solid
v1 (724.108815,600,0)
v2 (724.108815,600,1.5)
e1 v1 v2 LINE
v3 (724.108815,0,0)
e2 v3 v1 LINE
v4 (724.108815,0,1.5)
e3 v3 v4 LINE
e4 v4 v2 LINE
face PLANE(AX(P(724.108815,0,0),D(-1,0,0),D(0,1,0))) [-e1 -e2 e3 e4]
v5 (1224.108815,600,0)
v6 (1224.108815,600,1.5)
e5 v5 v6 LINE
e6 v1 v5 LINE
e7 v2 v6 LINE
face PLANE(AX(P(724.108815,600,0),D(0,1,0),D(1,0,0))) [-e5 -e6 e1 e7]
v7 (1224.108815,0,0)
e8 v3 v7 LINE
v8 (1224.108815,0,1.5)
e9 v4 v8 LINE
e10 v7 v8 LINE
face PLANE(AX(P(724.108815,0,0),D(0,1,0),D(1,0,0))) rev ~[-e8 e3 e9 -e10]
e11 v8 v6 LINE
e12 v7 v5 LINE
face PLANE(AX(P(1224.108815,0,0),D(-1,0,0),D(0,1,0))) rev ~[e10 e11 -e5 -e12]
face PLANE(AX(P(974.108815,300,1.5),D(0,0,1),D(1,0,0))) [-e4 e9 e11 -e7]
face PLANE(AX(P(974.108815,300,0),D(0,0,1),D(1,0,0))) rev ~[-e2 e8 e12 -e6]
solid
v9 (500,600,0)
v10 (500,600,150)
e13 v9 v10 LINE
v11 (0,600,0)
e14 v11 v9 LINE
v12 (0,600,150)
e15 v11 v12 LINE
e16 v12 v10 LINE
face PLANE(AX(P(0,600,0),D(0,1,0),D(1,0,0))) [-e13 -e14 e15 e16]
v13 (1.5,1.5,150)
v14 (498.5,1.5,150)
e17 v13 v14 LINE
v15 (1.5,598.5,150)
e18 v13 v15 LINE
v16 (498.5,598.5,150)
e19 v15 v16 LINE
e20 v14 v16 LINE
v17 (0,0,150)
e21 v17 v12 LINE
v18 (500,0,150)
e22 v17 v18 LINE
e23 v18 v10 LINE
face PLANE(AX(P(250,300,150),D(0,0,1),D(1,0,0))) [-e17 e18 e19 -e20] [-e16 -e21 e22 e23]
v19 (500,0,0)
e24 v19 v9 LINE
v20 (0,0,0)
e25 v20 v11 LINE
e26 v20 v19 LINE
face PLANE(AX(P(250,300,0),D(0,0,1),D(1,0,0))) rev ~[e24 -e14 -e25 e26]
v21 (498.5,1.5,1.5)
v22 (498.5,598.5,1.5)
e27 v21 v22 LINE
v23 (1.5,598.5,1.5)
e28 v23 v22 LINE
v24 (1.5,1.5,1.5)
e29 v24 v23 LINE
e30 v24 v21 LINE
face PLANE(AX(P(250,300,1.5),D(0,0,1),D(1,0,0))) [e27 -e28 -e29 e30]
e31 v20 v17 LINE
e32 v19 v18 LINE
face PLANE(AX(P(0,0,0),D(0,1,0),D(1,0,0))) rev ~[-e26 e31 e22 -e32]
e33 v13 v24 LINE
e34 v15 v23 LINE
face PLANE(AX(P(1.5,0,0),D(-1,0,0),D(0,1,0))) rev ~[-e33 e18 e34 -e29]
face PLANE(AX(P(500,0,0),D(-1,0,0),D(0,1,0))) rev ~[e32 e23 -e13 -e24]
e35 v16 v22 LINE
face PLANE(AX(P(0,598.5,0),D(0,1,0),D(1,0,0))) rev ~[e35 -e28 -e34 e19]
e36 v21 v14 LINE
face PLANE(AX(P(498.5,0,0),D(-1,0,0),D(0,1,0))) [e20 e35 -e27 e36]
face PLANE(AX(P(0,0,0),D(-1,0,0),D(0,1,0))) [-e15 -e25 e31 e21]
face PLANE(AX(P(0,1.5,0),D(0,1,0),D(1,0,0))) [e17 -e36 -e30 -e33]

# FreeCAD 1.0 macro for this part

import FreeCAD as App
import Part
import Sketcher
Q = App.Units.Quantity


def faces_at(feature, points):
    """Names of the faces that lie closest to the given points."""
    faces = feature.Shape.Faces
    near = lambda p: min(range(len(faces)), key=lambda i: faces[i].distToShape(Part.Vertex(*p))[0])
    return sorted({f"Face{near(p) + 1}" for p in points})

doc = App.newDocument("Part")
params = doc.addObject("Spreadsheet::Sheet", "Params")
for row, (alias, value) in enumerate([
    ("sketch1_width", "500 mm"),
    ("sketch1_height", "600 mm"),
    ("pad1_length", "150 mm"),
    ("thickness_wall", "1.5 mm"),
    ("sketch2_width", "500 mm"),
    ("sketch2_height", "600 mm"),
    ("pad2_length", "1.5 mm"),
], start=1):
    params.set(f"A{row}", alias)
    params.set(f"B{row}", "=" + value)
    params.setAlias(f"B{row}", alias)

body = doc.addObject("PartDesign::Body", "Body")

# Sketch on XY plane
sketch1 = doc.addObject("Sketcher::SketchObject", "Sketch")
body.addObject(sketch1)
sketch1.AttachmentSupport = (doc.XY_Plane, [""])
sketch1.MapMode = "FlatFace"
sketch1.addGeometry([
    Part.LineSegment(App.Vector(0, 600, 0), App.Vector(0, 0, 0)),
    Part.LineSegment(App.Vector(0, 0, 0), App.Vector(500, 0, 0)),
    Part.LineSegment(App.Vector(500, 0, 0), App.Vector(500, 600, 0)),
    Part.LineSegment(App.Vector(500, 600, 0), App.Vector(0, 600, 0)),
], False)
sketch1.addConstraint([
    Sketcher.Constraint("Coincident", 0, 2, 1, 1),
    Sketcher.Constraint("Coincident", 1, 2, 2, 1),
    Sketcher.Constraint("Coincident", 2, 2, 3, 1),
    Sketcher.Constraint("Coincident", 3, 2, 0, 1),
    Sketcher.Constraint("Vertical", 0),
    Sketcher.Constraint("Horizontal", 1),
    Sketcher.Constraint("Vertical", 2),
    Sketcher.Constraint("Horizontal", 3),
    Sketcher.Constraint("Coincident", 0, 2, -1, 1),
    Sketcher.Constraint("DistanceX", 1, 1, 1, 2, Q("500 mm")),
    Sketcher.Constraint("DistanceY", 0, 2, 0, 1, Q("600 mm")),
])
sketch1.setExpression("Constraints[9]", "Params.sketch1_width")
sketch1.setExpression("Constraints[10]", "Params.sketch1_height")
pad1 = doc.addObject("PartDesign::Pad", "Pad")
body.addObject(pad1)
pad1.Profile = sketch1
pad1.setExpression("Length", "Params.pad1_length")
doc.recompute()

thickness = doc.addObject("PartDesign::Thickness", "Thickness")
body.addObject(thickness)
thickness.Base = (pad1, faces_at(pad1, [(250, 300, 150)]))
thickness.setExpression("Value", "Params.thickness_wall")
thickness.Reversed = True
thickness.Join = "Arc"
body2 = doc.addObject("PartDesign::Body", "Body001")

# Sketch on XY plane
sketch2 = doc.addObject("Sketcher::SketchObject", "Sketch001")
body2.addObject(sketch2)
sketch2.AttachmentSupport = (doc.getObject("XY_Plane001"), [""])
sketch2.MapMode = "FlatFace"
sketch2.addGeometry([
    Part.LineSegment(App.Vector(724.108815, 600, 0), App.Vector(724.108815, 0, 0)),
    Part.LineSegment(App.Vector(724.108815, 0, 0), App.Vector(1224.108815, 0, 0)),
    Part.LineSegment(App.Vector(1224.108815, 0, 0), App.Vector(1224.108815, 600, 0)),
    Part.LineSegment(App.Vector(1224.108815, 600, 0), App.Vector(724.108815, 600, 0)),
], False)
sketch2.addConstraint([
    Sketcher.Constraint("Coincident", 0, 2, 1, 1),
    Sketcher.Constraint("Coincident", 1, 2, 2, 1),
    Sketcher.Constraint("Coincident", 2, 2, 3, 1),
    Sketcher.Constraint("Coincident", 3, 2, 0, 1),
    Sketcher.Constraint("Vertical", 0),
    Sketcher.Constraint("Horizontal", 1),
    Sketcher.Constraint("Vertical", 2),
    Sketcher.Constraint("Horizontal", 3),
    Sketcher.Constraint("PointOnObject", 0, 2, -1),
    Sketcher.Constraint("DistanceX", 1, 1, 1, 2, Q("500 mm")),
    Sketcher.Constraint("DistanceY", 0, 2, 0, 1, Q("600 mm")),
    Sketcher.Constraint("DistanceX", -1, 1, 0, 2, Q("724.108815 mm")),
])
sketch2.setExpression("Constraints[9]", "Params.sketch2_width")
sketch2.setExpression("Constraints[10]", "Params.sketch2_height")
pad2 = doc.addObject("PartDesign::Pad", "Pad001")
body2.addObject(pad2)
pad2.Profile = sketch2
pad2.setExpression("Length", "Params.pad2_length")

doc.recompute()
